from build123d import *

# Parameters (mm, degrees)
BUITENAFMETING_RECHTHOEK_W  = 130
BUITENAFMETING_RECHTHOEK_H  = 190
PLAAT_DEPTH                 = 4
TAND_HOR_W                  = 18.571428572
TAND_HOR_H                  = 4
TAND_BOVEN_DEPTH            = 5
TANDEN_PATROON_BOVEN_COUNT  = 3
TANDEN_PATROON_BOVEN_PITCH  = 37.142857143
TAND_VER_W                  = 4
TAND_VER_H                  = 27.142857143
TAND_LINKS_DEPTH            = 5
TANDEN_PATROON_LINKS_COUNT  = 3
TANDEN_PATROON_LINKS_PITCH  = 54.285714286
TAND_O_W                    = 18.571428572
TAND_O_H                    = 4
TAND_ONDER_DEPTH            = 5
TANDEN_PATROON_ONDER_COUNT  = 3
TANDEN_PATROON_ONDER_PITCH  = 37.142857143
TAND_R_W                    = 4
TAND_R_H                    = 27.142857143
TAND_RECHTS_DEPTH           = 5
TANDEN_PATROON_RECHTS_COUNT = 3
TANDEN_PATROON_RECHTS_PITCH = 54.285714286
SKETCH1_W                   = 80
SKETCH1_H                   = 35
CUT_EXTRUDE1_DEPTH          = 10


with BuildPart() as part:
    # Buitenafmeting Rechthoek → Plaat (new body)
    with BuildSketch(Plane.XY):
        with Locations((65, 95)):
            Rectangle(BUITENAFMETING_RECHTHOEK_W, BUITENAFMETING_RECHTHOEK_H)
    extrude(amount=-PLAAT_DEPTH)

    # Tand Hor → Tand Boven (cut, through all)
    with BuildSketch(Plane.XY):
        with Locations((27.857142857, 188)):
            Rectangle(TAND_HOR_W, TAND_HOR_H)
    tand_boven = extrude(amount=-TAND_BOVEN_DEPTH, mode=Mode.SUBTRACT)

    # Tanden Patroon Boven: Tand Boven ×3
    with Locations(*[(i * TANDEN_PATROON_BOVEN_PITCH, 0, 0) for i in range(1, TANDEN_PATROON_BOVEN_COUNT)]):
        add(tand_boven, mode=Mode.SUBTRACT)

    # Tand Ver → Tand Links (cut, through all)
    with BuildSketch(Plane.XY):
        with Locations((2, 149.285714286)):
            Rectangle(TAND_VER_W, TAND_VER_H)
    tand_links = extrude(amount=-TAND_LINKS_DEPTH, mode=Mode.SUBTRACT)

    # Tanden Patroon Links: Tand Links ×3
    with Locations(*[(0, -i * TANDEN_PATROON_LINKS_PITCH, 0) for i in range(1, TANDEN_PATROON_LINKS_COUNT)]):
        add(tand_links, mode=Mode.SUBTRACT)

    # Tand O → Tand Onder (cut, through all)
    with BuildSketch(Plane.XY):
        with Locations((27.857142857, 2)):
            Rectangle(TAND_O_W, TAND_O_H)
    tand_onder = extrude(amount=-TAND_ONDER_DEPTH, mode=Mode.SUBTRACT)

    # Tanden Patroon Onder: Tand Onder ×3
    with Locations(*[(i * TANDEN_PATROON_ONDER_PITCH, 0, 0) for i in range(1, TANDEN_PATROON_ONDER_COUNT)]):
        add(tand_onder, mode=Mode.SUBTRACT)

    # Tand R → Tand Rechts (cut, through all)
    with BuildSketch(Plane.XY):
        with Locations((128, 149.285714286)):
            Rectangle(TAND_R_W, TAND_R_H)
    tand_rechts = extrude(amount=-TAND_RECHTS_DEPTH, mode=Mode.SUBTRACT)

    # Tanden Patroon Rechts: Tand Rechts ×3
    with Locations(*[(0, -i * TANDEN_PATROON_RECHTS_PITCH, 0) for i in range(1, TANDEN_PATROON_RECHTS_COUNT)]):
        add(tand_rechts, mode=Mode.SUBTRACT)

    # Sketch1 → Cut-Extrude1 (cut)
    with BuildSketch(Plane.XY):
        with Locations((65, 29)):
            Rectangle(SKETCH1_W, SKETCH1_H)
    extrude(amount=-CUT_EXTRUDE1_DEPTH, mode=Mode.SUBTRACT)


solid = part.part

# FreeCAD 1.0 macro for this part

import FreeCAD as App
import Part
import Sketcher
from FreeCAD import Vector
Q = App.Units.Quantity


def add_polygon(sketch, points):
    """Adds a closed chain of lines whose ends are joined by coincident constraints."""
    first, n = sketch.GeometryCount, len(points)
    for a, b in zip(points, points[1:] + points[:1]):
        sketch.addGeometry(Part.LineSegment(App.Vector(*a, 0), App.Vector(*b, 0)), False)
    for i in range(n):
        sketch.addConstraint(Sketcher.Constraint("Coincident", first + i, 2, first + (i + 1) % n, 1))

doc = App.newDocument("Part")
body = doc.addObject("PartDesign::Body", "Body")

# Sketch on XY plane
sketch1 = body.newObject("Sketcher::SketchObject", "Sketch")
sketch1.AttachmentSupport = (doc.getObject("XY_Plane"), [""])
sketch1.MapMode = "FlatFace"
add_polygon(sketch1, [(0, 190), (0, 0), (130, 0), (130, 190)])  # lines 0-3
sketch1.addConstraint([
    Sketcher.Constraint("Vertical", 0),
    Sketcher.Constraint("Horizontal", 1),
    Sketcher.Constraint("Vertical", 2),
    Sketcher.Constraint("Horizontal", 3),
    Sketcher.Constraint("Coincident", 0, 2, -1, 1),
    Sketcher.Constraint("DistanceX", 1, 1, 1, 2, Q("130 mm")),
    Sketcher.Constraint("DistanceY", 0, 2, 0, 1, Q("190 mm")),
])
pad1 = body.newObject("PartDesign::Pad", "Pad")
pad1.Profile = sketch1
pad1.Length = 4
pad1.Reversed = True

# Sketch on XY plane
sketch2 = body.newObject("Sketcher::SketchObject", "Sketch001")
sketch2.AttachmentSupport = (doc.getObject("XY_Plane"), [""])
sketch2.MapMode = "FlatFace"
add_polygon(sketch2, [(18.571429, 190), (18.571429, 186), (37.142857, 186), (37.142857, 190)])  # lines 0-3
sketch2.addConstraint([
    Sketcher.Constraint("Vertical", 0),
    Sketcher.Constraint("Horizontal", 1),
    Sketcher.Constraint("Vertical", 2),
    Sketcher.Constraint("Horizontal", 3),
    Sketcher.Constraint("DistanceY", 0, 2, 0, 1, Q("4 mm")),
    Sketcher.Constraint("DistanceY", -1, 1, 0, 2, Q("186 mm")),
    Sketcher.Constraint("DistanceX", 1, 1, 1, 2, Q("18.571429 mm")),
    Sketcher.Constraint("DistanceX", -1, 1, 0, 2, Q("18.571429 mm")),
])
pocket1 = body.newObject("PartDesign::Pocket", "Pocket")
pocket1.Profile = sketch2
pocket1.Type = "ThroughAll"
doc.recompute()

linearpattern = body.newObject("PartDesign::LinearPattern", "LinearPattern")
linearpattern.Originals = [pocket1]
linearpattern.Direction = (doc.getObject("X_Axis"), [""])
linearpattern.Mode = "offset"
linearpattern.Offset = 37.142857
linearpattern.Occurrences = 3
body.Tip = linearpattern

# Sketch on XY plane
sketch3 = body.newObject("Sketcher::SketchObject", "Sketch002")
sketch3.AttachmentSupport = (doc.getObject("XY_Plane"), [""])
sketch3.MapMode = "FlatFace"
add_polygon(sketch3, [(0, 162.857143), (0, 135.714286), (4, 135.714286), (4, 162.857143)])  # lines 0-3
sketch3.addConstraint([
    Sketcher.Constraint("Vertical", 0),
    Sketcher.Constraint("Horizontal", 1),
    Sketcher.Constraint("Vertical", 2),
    Sketcher.Constraint("Horizontal", 3),
    Sketcher.Constraint("PointOnObject", 0, 2, -2),
    Sketcher.Constraint("DistanceX", 1, 1, 1, 2, Q("4 mm")),
    Sketcher.Constraint("DistanceY", 0, 2, 0, 1, Q("27.142857 mm")),
    Sketcher.Constraint("DistanceY", -1, 1, 0, 2, Q("135.714286 mm")),
])
pocket2 = body.newObject("PartDesign::Pocket", "Pocket001")
pocket2.Profile = sketch3
pocket2.Type = "ThroughAll"
doc.recompute()

linearpattern2 = body.newObject("PartDesign::LinearPattern", "LinearPattern001")
linearpattern2.Originals = [pocket2]
linearpattern2.Direction = (doc.getObject("Y_Axis"), [""])
linearpattern2.Mode = "offset"
linearpattern2.Offset = 54.285714
linearpattern2.Occurrences = 3
linearpattern2.Reversed = True
body.Tip = linearpattern2

# Sketch on XY plane
sketch4 = body.newObject("Sketcher::SketchObject", "Sketch003")
sketch4.AttachmentSupport = (doc.getObject("XY_Plane"), [""])
sketch4.MapMode = "FlatFace"
add_polygon(sketch4, [(18.571429, 4), (18.571429, 0), (37.142857, 0), (37.142857, 4)])  # lines 0-3
sketch4.addConstraint([
    Sketcher.Constraint("Vertical", 0),
    Sketcher.Constraint("Horizontal", 1),
    Sketcher.Constraint("Vertical", 2),
    Sketcher.Constraint("Horizontal", 3),
    Sketcher.Constraint("PointOnObject", 0, 2, -1),
    Sketcher.Constraint("DistanceY", 0, 2, 0, 1, Q("4 mm")),
    Sketcher.Constraint("DistanceX", 1, 1, 1, 2, Q("18.571429 mm")),
    Sketcher.Constraint("DistanceX", -1, 1, 0, 2, Q("18.571429 mm")),
])
pocket3 = body.newObject("PartDesign::Pocket", "Pocket002")
pocket3.Profile = sketch4
pocket3.Type = "ThroughAll"
doc.recompute()

linearpattern3 = body.newObject("PartDesign::LinearPattern", "LinearPattern002")
linearpattern3.Originals = [pocket3]
linearpattern3.Direction = (doc.getObject("X_Axis"), [""])
linearpattern3.Mode = "offset"
linearpattern3.Offset = 37.142857
linearpattern3.Occurrences = 3
body.Tip = linearpattern3

# Sketch on XY plane
sketch5 = body.newObject("Sketcher::SketchObject", "Sketch004")
sketch5.AttachmentSupport = (doc.getObject("XY_Plane"), [""])
sketch5.MapMode = "FlatFace"
add_polygon(sketch5, [(126, 162.857143), (126, 135.714286), (130, 135.714286), (130, 162.857143)])  # lines 0-3
sketch5.addConstraint([
    Sketcher.Constraint("Vertical", 0),
    Sketcher.Constraint("Horizontal", 1),
    Sketcher.Constraint("Vertical", 2),
    Sketcher.Constraint("Horizontal", 3),
    Sketcher.Constraint("DistanceX", 1, 1, 1, 2, Q("4 mm")),
    Sketcher.Constraint("DistanceX", -1, 1, 0, 2, Q("126 mm")),
    Sketcher.Constraint("DistanceY", 0, 2, 0, 1, Q("27.142857 mm")),
    Sketcher.Constraint("DistanceY", -1, 1, 0, 2, Q("135.714286 mm")),
])
pocket4 = body.newObject("PartDesign::Pocket", "Pocket003")
pocket4.Profile = sketch5
pocket4.Type = "ThroughAll"
doc.recompute()

linearpattern4 = body.newObject("PartDesign::LinearPattern", "LinearPattern003")
linearpattern4.Originals = [pocket4]
linearpattern4.Direction = (doc.getObject("Y_Axis"), [""])
linearpattern4.Mode = "offset"
linearpattern4.Offset = 54.285714
linearpattern4.Occurrences = 3
linearpattern4.Reversed = True
body.Tip = linearpattern4

# Sketch on XY plane
sketch6 = body.newObject("Sketcher::SketchObject", "Sketch005")
sketch6.AttachmentSupport = (doc.getObject("XY_Plane"), [""])
sketch6.MapMode = "FlatFace"
add_polygon(sketch6, [(25, 46.5), (25, 11.5), (105, 11.5), (105, 46.5)])  # lines 0-3
sketch6.addConstraint([
    Sketcher.Constraint("Vertical", 0),
    Sketcher.Constraint("Horizontal", 1),
    Sketcher.Constraint("Vertical", 2),
    Sketcher.Constraint("Horizontal", 3),
    Sketcher.Constraint("DistanceX", 1, 1, 1, 2, Q("80 mm")),
    Sketcher.Constraint("DistanceY", 0, 2, 0, 1, Q("35 mm")),
    Sketcher.Constraint("DistanceX", -1, 1, 0, 2, Q("25 mm")),
    Sketcher.Constraint("DistanceY", -1, 1, 0, 2, Q("11.5 mm")),
])
pocket5 = body.newObject("PartDesign::Pocket", "Pocket004")
pocket5.Profile = sketch6
pocket5.Length = 10

doc.recompute()
